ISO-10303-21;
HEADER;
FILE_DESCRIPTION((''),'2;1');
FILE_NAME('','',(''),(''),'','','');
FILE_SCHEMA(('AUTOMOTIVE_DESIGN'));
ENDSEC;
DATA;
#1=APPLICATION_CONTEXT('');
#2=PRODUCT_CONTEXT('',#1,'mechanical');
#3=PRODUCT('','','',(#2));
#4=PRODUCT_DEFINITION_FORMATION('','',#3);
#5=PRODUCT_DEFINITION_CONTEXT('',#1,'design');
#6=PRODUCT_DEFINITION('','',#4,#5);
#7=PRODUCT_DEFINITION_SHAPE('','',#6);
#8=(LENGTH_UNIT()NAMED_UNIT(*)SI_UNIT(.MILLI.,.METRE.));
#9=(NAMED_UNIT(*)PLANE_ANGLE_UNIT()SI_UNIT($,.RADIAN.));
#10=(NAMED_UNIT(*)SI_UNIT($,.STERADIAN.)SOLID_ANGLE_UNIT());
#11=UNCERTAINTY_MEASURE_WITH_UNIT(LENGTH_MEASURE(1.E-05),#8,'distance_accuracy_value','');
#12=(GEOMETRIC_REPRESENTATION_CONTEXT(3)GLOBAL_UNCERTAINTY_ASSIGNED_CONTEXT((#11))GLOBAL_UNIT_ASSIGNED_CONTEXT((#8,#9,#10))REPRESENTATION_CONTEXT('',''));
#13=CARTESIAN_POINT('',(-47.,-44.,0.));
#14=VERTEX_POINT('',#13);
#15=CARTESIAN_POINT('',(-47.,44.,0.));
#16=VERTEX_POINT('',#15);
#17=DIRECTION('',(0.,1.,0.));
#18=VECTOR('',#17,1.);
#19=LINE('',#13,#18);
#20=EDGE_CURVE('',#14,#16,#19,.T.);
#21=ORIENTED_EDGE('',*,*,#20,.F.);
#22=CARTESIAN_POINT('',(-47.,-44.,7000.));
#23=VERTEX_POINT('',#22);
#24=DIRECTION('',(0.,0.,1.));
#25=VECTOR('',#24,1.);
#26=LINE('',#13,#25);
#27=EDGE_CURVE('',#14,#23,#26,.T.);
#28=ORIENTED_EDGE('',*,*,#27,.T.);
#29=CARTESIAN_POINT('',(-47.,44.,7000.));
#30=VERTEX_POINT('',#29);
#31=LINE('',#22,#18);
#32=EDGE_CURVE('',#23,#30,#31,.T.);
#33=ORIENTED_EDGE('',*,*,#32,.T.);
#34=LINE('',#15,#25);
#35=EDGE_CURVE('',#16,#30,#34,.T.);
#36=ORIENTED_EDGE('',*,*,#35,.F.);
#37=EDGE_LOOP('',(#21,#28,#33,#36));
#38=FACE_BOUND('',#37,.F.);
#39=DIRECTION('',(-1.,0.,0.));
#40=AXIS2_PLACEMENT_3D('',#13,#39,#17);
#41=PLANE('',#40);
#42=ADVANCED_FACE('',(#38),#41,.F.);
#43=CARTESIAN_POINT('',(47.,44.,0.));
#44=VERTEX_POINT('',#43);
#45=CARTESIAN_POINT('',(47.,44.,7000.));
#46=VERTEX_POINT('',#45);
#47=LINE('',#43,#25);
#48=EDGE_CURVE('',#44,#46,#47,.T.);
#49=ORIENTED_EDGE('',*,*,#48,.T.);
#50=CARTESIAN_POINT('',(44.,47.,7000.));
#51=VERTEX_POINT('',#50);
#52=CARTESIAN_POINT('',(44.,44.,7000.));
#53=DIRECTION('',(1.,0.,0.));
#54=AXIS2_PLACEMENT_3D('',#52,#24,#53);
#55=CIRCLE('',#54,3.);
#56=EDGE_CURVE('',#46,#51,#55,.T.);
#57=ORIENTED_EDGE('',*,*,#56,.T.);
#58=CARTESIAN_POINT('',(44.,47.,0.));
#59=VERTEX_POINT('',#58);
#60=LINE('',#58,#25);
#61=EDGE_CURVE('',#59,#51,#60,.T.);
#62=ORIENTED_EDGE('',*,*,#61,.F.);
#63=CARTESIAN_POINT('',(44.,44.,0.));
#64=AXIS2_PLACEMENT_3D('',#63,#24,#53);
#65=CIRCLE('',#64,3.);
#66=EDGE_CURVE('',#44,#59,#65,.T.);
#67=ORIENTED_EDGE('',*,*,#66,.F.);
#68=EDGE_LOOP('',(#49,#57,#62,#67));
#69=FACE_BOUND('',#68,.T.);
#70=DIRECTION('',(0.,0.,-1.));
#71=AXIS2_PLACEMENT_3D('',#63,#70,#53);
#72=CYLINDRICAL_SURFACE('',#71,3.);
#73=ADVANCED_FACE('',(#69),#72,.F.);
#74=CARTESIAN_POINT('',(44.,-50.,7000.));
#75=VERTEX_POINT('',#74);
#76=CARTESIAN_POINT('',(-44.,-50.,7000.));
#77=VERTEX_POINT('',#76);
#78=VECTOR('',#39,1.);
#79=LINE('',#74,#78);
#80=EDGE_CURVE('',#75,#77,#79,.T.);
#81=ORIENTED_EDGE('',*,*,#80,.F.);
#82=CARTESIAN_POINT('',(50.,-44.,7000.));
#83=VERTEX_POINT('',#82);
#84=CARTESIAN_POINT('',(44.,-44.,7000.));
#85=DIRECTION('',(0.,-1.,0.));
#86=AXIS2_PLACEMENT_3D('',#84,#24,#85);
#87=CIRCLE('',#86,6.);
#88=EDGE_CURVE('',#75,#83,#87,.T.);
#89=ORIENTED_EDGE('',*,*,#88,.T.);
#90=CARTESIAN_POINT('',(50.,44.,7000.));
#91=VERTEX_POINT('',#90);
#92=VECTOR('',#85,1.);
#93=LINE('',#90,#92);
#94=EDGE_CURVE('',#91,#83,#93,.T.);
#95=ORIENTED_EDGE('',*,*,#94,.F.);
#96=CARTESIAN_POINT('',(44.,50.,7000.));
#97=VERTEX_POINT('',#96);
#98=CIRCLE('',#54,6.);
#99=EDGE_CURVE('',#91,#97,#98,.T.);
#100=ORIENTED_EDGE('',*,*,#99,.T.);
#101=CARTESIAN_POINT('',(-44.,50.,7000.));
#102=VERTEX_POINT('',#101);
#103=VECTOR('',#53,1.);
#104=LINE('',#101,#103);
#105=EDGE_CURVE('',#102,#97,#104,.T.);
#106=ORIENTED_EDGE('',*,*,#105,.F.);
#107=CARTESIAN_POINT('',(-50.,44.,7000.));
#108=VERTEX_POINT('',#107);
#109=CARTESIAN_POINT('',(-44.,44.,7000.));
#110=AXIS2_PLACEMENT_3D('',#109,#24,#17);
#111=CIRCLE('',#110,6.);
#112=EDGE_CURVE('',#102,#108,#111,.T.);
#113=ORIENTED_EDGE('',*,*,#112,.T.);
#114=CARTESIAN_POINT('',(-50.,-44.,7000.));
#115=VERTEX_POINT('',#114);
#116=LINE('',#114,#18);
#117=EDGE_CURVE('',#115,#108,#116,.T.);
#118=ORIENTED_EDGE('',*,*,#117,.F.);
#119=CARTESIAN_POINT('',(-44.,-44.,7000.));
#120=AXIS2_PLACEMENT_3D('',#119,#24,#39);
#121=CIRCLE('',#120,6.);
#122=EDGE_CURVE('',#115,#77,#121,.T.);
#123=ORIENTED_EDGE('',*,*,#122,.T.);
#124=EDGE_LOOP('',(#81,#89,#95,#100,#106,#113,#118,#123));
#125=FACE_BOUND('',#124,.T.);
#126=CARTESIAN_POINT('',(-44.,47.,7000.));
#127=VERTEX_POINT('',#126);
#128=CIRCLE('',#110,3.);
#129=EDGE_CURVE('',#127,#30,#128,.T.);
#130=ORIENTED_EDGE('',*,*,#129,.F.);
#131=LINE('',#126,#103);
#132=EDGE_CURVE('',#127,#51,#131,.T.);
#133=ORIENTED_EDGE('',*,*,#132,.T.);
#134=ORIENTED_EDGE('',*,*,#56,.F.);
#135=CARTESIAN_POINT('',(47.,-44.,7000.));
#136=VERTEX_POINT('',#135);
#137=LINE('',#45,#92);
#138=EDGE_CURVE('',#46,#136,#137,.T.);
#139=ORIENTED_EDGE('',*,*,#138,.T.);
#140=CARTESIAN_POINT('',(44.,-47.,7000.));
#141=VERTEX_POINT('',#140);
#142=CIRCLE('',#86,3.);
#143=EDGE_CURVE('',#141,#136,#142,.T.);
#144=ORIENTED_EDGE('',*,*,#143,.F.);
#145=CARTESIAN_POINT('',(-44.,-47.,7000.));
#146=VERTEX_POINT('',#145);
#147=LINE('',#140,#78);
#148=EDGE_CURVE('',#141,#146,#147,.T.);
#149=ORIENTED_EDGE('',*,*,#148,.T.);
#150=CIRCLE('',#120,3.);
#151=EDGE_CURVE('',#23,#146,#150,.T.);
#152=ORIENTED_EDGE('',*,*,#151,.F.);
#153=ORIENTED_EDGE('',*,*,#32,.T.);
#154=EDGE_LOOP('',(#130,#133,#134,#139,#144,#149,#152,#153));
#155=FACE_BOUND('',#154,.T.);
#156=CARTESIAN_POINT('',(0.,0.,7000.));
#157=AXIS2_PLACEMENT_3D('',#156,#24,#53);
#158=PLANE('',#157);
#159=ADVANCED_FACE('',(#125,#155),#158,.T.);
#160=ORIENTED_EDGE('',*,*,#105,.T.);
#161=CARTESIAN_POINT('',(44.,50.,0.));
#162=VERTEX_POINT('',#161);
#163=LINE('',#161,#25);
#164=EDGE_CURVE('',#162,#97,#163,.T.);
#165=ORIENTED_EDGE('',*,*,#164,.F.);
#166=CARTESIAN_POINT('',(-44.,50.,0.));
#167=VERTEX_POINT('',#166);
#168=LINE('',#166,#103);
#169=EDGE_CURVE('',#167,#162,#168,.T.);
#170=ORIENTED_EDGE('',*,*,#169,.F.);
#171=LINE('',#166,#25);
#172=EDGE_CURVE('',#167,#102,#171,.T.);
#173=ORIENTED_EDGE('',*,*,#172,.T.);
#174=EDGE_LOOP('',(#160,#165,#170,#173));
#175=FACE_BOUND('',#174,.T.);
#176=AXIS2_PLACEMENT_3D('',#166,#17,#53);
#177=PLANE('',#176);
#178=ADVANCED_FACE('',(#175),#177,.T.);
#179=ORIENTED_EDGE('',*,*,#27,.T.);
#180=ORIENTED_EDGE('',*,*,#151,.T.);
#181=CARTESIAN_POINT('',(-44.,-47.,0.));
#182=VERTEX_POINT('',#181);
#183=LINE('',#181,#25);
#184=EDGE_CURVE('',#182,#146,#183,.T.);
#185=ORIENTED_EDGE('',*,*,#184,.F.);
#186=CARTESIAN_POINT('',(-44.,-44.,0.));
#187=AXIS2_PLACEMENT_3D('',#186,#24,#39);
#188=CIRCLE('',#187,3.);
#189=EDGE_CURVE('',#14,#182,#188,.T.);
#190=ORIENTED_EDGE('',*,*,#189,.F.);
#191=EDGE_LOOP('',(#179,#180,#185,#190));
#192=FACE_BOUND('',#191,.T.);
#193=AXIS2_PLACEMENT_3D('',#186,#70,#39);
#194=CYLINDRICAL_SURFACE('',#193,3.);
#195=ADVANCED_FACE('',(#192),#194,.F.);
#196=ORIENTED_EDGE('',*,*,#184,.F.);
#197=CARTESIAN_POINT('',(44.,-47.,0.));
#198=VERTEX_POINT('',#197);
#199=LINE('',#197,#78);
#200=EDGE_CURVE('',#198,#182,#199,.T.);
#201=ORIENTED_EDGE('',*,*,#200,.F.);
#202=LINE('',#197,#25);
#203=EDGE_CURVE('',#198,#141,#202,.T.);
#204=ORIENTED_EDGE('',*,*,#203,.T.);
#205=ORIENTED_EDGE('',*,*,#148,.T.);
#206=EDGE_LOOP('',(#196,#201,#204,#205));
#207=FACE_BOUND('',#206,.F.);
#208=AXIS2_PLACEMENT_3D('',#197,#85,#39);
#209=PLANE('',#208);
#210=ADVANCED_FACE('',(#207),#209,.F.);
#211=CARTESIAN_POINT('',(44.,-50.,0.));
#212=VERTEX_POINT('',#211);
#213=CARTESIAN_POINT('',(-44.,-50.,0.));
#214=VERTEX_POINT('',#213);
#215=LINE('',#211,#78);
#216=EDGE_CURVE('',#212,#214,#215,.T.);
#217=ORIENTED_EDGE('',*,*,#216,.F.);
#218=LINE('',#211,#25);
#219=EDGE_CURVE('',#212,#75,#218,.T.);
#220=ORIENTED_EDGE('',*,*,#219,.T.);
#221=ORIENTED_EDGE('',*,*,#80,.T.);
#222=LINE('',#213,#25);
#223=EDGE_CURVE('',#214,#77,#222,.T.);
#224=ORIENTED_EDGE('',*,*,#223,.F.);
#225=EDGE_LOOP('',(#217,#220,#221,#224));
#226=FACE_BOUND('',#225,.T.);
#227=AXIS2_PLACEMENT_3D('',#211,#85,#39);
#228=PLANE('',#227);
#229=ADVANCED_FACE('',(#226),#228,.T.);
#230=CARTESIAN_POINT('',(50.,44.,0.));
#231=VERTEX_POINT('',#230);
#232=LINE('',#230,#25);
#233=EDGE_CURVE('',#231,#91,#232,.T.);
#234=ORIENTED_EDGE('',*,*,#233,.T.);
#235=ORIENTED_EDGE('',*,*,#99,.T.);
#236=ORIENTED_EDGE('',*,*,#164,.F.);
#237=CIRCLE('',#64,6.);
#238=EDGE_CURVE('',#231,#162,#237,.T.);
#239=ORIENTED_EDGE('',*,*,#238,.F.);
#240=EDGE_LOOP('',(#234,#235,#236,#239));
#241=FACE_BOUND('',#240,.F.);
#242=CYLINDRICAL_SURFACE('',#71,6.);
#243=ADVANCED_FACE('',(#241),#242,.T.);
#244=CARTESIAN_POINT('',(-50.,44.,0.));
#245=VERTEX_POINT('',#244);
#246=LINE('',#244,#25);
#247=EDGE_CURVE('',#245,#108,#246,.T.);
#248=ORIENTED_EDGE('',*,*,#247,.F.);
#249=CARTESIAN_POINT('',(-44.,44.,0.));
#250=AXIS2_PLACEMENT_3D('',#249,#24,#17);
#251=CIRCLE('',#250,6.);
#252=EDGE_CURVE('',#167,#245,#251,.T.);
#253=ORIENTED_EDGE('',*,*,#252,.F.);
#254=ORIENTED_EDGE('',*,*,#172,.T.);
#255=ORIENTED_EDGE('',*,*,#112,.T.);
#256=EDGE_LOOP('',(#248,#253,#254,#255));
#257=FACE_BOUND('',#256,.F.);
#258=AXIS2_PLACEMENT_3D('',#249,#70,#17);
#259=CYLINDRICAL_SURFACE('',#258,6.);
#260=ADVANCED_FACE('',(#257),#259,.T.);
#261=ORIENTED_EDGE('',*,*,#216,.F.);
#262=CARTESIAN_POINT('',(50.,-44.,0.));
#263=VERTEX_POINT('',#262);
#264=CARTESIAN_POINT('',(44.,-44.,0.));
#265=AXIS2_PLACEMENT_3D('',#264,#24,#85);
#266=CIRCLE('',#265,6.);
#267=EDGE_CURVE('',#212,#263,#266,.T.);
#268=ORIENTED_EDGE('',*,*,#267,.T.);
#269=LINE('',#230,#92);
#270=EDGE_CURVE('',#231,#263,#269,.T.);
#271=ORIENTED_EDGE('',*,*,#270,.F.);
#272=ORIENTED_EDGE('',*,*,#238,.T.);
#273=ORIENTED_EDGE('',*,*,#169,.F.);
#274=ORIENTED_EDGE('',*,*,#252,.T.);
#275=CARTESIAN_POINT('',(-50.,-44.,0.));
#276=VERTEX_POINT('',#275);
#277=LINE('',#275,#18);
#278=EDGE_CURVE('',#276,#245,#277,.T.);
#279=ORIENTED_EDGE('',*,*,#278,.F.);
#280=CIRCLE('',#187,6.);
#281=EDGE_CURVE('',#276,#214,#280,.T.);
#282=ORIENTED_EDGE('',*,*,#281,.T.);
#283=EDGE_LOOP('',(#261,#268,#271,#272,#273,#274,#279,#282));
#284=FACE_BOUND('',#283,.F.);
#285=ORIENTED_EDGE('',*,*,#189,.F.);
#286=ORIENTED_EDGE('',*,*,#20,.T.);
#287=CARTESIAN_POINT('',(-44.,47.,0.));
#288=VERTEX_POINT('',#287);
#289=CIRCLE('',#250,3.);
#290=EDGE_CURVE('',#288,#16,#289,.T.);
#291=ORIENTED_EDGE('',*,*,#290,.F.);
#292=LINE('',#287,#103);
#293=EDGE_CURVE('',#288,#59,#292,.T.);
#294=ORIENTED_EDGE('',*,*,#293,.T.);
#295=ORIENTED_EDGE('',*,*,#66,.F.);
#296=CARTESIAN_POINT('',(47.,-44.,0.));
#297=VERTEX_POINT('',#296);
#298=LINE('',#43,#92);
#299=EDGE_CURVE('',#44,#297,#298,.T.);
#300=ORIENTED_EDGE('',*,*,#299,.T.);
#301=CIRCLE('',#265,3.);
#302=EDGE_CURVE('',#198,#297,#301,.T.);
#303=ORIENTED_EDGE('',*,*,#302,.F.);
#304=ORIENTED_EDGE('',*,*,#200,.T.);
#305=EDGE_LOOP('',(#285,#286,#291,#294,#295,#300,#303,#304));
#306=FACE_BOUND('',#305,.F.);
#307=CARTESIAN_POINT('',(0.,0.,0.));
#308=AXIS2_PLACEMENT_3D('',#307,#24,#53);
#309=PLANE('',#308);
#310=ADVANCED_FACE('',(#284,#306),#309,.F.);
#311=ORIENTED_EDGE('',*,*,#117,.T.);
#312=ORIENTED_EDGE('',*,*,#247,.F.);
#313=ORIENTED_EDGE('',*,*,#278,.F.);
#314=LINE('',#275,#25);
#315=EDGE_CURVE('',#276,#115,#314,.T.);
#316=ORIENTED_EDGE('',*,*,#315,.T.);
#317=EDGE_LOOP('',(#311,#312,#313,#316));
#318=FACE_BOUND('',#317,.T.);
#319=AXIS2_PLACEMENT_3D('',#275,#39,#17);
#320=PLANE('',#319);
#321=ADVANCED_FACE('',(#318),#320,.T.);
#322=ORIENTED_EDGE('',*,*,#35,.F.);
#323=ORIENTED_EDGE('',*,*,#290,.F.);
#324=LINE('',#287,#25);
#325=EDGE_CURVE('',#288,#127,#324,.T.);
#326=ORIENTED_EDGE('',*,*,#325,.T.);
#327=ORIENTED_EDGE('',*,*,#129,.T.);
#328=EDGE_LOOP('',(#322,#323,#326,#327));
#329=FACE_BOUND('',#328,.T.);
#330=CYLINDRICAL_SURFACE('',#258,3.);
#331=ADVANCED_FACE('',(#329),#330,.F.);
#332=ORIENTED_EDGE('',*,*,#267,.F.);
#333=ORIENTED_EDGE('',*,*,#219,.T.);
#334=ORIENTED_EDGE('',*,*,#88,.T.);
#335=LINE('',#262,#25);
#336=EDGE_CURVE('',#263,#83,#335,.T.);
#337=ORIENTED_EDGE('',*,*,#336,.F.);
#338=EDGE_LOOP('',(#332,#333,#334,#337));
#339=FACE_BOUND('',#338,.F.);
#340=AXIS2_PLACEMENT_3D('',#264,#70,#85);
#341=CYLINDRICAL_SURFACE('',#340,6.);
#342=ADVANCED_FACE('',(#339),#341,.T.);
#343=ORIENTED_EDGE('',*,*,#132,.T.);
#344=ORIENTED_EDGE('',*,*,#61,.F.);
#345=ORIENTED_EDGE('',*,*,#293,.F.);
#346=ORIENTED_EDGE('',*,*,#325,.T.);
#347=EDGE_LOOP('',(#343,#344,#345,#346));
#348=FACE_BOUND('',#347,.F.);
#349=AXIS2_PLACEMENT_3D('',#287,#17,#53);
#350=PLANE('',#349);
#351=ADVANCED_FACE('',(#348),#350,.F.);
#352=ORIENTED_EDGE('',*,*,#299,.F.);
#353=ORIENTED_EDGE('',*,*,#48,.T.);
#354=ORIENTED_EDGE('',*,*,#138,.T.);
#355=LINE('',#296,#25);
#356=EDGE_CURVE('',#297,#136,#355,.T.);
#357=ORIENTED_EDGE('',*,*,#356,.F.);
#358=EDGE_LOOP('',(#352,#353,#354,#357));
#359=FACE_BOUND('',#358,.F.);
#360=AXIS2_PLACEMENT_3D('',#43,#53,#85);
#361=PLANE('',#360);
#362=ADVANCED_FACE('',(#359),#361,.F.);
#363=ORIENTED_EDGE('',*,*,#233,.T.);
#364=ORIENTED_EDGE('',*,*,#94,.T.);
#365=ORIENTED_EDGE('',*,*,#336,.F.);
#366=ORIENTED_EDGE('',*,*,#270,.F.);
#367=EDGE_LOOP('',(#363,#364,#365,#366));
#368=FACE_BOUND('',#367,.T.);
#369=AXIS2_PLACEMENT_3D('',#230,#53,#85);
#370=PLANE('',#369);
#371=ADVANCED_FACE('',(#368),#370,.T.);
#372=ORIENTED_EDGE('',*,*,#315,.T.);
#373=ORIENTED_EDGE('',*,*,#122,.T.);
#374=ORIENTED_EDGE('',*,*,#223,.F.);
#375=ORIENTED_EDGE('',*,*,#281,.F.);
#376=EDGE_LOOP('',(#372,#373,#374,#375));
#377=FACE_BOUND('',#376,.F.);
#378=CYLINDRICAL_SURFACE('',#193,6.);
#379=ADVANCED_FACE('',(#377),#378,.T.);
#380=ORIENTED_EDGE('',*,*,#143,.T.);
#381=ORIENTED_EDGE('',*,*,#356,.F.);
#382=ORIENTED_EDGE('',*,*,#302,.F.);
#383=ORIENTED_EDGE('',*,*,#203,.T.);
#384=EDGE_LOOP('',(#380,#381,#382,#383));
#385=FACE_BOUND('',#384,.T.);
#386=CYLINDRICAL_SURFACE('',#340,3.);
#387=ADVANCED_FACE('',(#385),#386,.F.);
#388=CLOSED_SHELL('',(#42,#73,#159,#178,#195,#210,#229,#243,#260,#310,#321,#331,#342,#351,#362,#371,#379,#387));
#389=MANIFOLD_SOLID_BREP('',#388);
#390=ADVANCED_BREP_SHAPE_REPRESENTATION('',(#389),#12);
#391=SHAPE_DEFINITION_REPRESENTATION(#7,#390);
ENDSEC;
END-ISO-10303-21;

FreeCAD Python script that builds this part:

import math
import FreeCAD as App
import Part
import Sketcher
Q = App.Units.Quantity

doc = App.newDocument("Part")
params = doc.addObject("Spreadsheet::Sheet", "Params")
for row, (alias, value) in enumerate([
    ("sketch1_radius", "6 mm"),
    ("sketch1_radius2", "3 mm"),
    ("pad1_length", "7000 mm"),
], start=1):
    params.set(f"A{row}", alias)
    params.set(f"B{row}", "=" + value)
    params.setAlias(f"B{row}", alias)

body = doc.addObject("PartDesign::Body", "Body")

# Sketch on XY plane
sketch1 = body.newObject("Sketcher::SketchObject", "Sketch")
sketch1.AttachmentSupport = (doc.getObject("XY_Plane"), [""])
sketch1.MapMode = "FlatFace"
sketch1.addGeometry(Part.LineSegment(App.Vector(-50, 44, 0), App.Vector(-50, -44, 0)), False)
sketch1.addGeometry(Part.ArcOfCircle(Part.Circle(App.Vector(-44, -44, 0), App.Vector(0, 0, 1), 6), math.radians(180), math.radians(270)), False)
sketch1.addGeometry(Part.LineSegment(App.Vector(-44, -50, 0), App.Vector(44, -50, 0)), False)
sketch1.addGeometry(Part.ArcOfCircle(Part.Circle(App.Vector(44, -44, 0), App.Vector(0, 0, 1), 6), math.radians(-90), math.radians(0)), False)
sketch1.addGeometry(Part.LineSegment(App.Vector(50, -44, 0), App.Vector(50, 44, 0)), False)
sketch1.addGeometry(Part.ArcOfCircle(Part.Circle(App.Vector(44, 44, 0), App.Vector(0, 0, 1), 6), math.radians(0), math.radians(90)), False)
sketch1.addGeometry(Part.LineSegment(App.Vector(44, 50, 0), App.Vector(-44, 50, 0)), False)
sketch1.addGeometry(Part.ArcOfCircle(Part.Circle(App.Vector(-44, 44, 0), App.Vector(0, 0, 1), 6), math.radians(90), math.radians(180)), False)
sketch1.addGeometry(Part.ArcOfCircle(Part.Circle(App.Vector(-44, 44, 0), App.Vector(0, 0, 1), 3), math.radians(90), math.radians(180)), False)
sketch1.addGeometry(Part.LineSegment(App.Vector(-44, 47, 0), App.Vector(44, 47, 0)), False)
sketch1.addGeometry(Part.ArcOfCircle(Part.Circle(App.Vector(44, 44, 0), App.Vector(0, 0, 1), 3), math.radians(0), math.radians(90)), False)
sketch1.addGeometry(Part.LineSegment(App.Vector(47, 44, 0), App.Vector(47, -44, 0)), False)
sketch1.addGeometry(Part.ArcOfCircle(Part.Circle(App.Vector(44, -44, 0), App.Vector(0, 0, 1), 3), math.radians(-90), math.radians(0)), False)
sketch1.addGeometry(Part.LineSegment(App.Vector(44, -47, 0), App.Vector(-44, -47, 0)), False)
sketch1.addGeometry(Part.ArcOfCircle(Part.Circle(App.Vector(-44, -44, 0), App.Vector(0, 0, 1), 3), math.radians(180), math.radians(270)), False)
sketch1.addGeometry(Part.LineSegment(App.Vector(-47, -44, 0), App.Vector(-47, 44, 0)), False)
sketch1.addConstraint(Sketcher.Constraint("Tangent", 0, 2, 1, 1))
sketch1.addConstraint(Sketcher.Constraint("Tangent", 1, 2, 2, 1))
sketch1.addConstraint(Sketcher.Constraint("Tangent", 2, 2, 3, 1))
sketch1.addConstraint(Sketcher.Constraint("Tangent", 3, 2, 4, 1))
sketch1.addConstraint(Sketcher.Constraint("Tangent", 4, 2, 5, 1))
sketch1.addConstraint(Sketcher.Constraint("Tangent", 5, 2, 6, 1))
sketch1.addConstraint(Sketcher.Constraint("Tangent", 6, 2, 7, 1))
sketch1.addConstraint(Sketcher.Constraint("Tangent", 7, 2, 0, 1))
sketch1.addConstraint(Sketcher.Constraint("Tangent", 8, 1, 9, 1))
sketch1.addConstraint(Sketcher.Constraint("Tangent", 9, 2, 10, 2))
sketch1.addConstraint(Sketcher.Constraint("Tangent", 10, 1, 11, 1))
sketch1.addConstraint(Sketcher.Constraint("Tangent", 11, 2, 12, 2))
sketch1.addConstraint(Sketcher.Constraint("Tangent", 12, 1, 13, 1))
sketch1.addConstraint(Sketcher.Constraint("Tangent", 13, 2, 14, 2))
sketch1.addConstraint(Sketcher.Constraint("Tangent", 14, 1, 15, 1))
sketch1.addConstraint(Sketcher.Constraint("Tangent", 15, 2, 8, 2))
sketch1.addConstraint(Sketcher.Constraint("Vertical", 0))
sketch1.addConstraint(Sketcher.Constraint("Horizontal", 2))
sketch1.addConstraint(Sketcher.Constraint("Vertical", 4))
sketch1.addConstraint(Sketcher.Constraint("Horizontal", 6))
sketch1.addConstraint(Sketcher.Constraint("Horizontal", 9))
sketch1.addConstraint(Sketcher.Constraint("Vertical", 11))
sketch1.addConstraint(Sketcher.Constraint("Horizontal", 13))
sketch1.addConstraint(Sketcher.Constraint("Vertical", 15))
sketch1.addConstraint(Sketcher.Constraint("Coincident", 8, 3, 7, 3))
sketch1.addConstraint(Sketcher.Constraint("Coincident", 10, 3, 5, 3))
sketch1.addConstraint(Sketcher.Constraint("Coincident", 12, 3, 3, 3))
sketch1.addConstraint(Sketcher.Constraint("Equal", 1, 3))
sketch1.addConstraint(Sketcher.Constraint("Equal", 3, 5))
sketch1.addConstraint(Sketcher.Constraint("Equal", 5, 7))
sketch1.addConstraint(Sketcher.Constraint("Equal", 12, 14))
sketch1.addConstraint(Sketcher.Constraint("Symmetric", 1, 3, 5, 3, -1, 1))
sketch1.addConstraint(Sketcher.Constraint("Equal", 13, 0))
sketch1.addConstraint(Sketcher.Constraint("Radius", 1, Q("6 mm")))
sketch1.addConstraint(Sketcher.Constraint("Radius", 8, Q("3 mm")))
sketch1.addConstraint(Sketcher.Constraint("DistanceX", 0, 2, -1, 1, Q("50 mm")))
sketch1.setExpression("Constraints[33]", "Params.sketch1_radius")
sketch1.setExpression("Constraints[34]", "Params.sketch1_radius2")
pad1 = body.newObject("PartDesign::Pad", "Pad")
pad1.Profile = sketch1
pad1.setExpression("Length", "Params.pad1_length")

doc.recompute()
